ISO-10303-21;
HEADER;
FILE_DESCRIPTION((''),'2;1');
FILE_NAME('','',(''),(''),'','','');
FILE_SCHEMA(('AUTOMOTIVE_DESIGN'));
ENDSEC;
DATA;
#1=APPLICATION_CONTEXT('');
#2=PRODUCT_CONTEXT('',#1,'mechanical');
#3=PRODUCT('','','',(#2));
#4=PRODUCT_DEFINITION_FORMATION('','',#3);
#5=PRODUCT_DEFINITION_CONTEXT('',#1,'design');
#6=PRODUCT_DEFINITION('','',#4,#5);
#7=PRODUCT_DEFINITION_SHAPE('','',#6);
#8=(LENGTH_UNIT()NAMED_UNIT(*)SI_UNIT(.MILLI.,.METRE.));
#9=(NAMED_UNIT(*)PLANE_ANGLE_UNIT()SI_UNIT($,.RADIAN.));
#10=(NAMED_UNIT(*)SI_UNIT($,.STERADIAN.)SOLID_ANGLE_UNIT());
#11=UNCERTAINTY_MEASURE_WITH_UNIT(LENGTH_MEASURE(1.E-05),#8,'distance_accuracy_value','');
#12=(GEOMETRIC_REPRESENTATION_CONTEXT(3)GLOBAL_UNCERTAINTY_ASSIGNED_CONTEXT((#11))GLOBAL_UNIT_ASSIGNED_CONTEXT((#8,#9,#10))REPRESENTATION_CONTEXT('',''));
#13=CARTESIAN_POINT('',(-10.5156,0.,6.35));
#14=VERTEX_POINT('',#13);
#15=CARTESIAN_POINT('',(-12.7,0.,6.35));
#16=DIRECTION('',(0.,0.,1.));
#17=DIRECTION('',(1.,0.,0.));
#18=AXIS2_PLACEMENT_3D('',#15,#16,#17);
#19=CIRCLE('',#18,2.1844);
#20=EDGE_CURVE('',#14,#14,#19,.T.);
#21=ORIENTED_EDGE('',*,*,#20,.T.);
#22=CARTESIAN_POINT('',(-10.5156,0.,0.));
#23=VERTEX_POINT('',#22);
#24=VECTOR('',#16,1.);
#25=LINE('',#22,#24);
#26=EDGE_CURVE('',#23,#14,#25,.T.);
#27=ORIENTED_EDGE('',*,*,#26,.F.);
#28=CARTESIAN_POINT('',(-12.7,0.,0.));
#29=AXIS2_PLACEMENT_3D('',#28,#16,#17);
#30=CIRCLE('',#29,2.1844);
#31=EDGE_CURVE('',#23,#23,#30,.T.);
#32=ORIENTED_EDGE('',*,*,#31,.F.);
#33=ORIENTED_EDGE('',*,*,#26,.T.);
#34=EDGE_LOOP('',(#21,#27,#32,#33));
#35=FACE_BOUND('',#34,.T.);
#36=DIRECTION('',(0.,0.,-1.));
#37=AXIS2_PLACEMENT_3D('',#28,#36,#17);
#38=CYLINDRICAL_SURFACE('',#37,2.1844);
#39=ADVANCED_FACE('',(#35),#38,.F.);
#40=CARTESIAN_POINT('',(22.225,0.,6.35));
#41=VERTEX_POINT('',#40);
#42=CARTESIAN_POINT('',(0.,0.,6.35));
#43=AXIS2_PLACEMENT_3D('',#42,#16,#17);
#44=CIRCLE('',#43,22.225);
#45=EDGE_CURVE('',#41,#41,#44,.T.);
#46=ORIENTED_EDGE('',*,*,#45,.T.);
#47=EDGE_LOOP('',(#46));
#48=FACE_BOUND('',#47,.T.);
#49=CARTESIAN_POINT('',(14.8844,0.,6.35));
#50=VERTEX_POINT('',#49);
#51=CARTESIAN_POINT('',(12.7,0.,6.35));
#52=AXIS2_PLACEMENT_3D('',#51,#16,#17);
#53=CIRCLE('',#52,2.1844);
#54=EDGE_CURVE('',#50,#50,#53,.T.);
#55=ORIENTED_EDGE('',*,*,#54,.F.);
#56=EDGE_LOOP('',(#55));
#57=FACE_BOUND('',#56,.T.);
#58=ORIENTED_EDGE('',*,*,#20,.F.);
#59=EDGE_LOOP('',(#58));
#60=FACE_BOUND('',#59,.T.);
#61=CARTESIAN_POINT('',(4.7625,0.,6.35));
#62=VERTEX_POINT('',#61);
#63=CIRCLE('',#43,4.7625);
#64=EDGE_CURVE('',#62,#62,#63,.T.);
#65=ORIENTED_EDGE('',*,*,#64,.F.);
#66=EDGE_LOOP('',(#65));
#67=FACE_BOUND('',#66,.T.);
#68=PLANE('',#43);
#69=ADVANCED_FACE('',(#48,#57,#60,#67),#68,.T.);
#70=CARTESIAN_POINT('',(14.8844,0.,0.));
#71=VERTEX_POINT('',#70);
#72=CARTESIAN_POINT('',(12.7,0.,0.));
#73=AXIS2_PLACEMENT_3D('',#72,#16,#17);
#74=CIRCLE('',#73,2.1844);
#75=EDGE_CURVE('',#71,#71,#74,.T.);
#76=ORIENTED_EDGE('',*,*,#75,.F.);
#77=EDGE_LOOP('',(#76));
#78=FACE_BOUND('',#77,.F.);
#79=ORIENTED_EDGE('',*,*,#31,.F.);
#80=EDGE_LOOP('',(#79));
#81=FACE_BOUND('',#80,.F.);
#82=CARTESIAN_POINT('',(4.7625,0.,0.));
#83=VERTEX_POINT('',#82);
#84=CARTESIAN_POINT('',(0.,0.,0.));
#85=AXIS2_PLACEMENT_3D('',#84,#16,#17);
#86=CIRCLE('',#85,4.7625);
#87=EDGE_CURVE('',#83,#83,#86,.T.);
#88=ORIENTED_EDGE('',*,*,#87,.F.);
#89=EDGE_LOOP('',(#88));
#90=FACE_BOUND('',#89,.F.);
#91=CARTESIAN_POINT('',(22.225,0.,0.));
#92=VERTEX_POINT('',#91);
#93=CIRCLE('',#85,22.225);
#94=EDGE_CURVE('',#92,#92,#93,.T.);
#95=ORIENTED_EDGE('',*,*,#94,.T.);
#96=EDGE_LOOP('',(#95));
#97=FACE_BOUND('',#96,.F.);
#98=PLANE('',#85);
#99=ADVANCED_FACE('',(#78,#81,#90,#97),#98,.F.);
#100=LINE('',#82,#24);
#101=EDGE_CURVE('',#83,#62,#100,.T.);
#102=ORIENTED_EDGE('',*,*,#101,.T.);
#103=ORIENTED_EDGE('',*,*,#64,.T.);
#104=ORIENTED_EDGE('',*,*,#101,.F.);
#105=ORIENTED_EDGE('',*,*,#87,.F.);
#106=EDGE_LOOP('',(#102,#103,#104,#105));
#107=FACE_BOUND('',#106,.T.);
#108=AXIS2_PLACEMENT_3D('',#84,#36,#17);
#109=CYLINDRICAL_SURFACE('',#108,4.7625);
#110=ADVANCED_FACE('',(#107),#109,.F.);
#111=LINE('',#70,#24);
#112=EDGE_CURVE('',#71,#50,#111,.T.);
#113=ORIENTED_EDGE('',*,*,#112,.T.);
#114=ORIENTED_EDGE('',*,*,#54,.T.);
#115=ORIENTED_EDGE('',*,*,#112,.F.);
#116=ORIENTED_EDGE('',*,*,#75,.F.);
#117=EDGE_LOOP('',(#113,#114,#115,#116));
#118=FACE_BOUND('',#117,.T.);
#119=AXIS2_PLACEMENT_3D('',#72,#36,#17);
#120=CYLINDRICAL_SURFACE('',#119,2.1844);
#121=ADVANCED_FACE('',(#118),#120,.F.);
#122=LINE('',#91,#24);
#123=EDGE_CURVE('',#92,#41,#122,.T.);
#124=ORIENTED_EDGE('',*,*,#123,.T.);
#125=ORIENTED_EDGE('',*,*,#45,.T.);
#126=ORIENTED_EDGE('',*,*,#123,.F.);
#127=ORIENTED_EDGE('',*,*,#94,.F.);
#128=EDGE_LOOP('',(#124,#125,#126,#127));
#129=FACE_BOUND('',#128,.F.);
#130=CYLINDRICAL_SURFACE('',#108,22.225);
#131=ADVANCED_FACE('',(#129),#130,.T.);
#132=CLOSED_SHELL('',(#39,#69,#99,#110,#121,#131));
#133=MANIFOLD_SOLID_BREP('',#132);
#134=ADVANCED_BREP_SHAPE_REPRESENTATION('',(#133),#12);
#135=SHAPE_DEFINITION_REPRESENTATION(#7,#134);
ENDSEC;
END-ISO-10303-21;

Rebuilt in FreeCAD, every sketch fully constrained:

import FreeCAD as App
import Part
import Sketcher

V = App.Vector
Q = App.Units.Quantity

doc = App.newDocument("Part")
body = doc.addObject("PartDesign::Body", "Body")

# Sketch on XY plane
sketch1 = body.newObject("Sketcher::SketchObject", "Sketch")
sketch1.AttachmentSupport = (doc.getObject("XY_Plane"), [""])
sketch1.MapMode = "FlatFace"
sketch1.addGeometry(Part.Circle(V(0, 0, 0), V(0, 0, 1), 22.2), False)
sketch1.addGeometry(Part.Circle(V(-12.7, 0, 0), V(0, 0, 1), 2.2), False)
sketch1.addGeometry(Part.Circle(V(0, 0, 0), V(0, 0, 1), 4.8), False)
sketch1.addGeometry(Part.Circle(V(12.7, 0, 0), V(0, 0, 1), 2.2), False)
sketch1.addConstraint(Sketcher.Constraint("Coincident", 0, 3, -1, 1))
sketch1.addConstraint(Sketcher.Constraint("Coincident", 2, 3, -1, 1))
sketch1.addConstraint(Sketcher.Constraint("Equal", 1, 3))
sketch1.addConstraint(Sketcher.Constraint("Symmetric", 1, 3, 3, 3, -1, 1))
sketch1.addConstraint(Sketcher.Constraint("PointOnObject", 1, 3, -1))
sketch1.addConstraint(Sketcher.Constraint("Diameter", 0, Q("1.75 in")))
sketch1.addConstraint(Sketcher.Constraint("Diameter", 1, Q("0.172 in")))
sketch1.addConstraint(Sketcher.Constraint("Diameter", 2, Q("0.375 in")))
sketch1.addConstraint(Sketcher.Constraint("DistanceX", 1, 3, -1, 1, Q("0.5 in")))
pad1 = body.newObject("PartDesign::Pad", "Pad")
pad1.Profile = sketch1
pad1.Length = Q("0.25 in")

doc.recompute()
